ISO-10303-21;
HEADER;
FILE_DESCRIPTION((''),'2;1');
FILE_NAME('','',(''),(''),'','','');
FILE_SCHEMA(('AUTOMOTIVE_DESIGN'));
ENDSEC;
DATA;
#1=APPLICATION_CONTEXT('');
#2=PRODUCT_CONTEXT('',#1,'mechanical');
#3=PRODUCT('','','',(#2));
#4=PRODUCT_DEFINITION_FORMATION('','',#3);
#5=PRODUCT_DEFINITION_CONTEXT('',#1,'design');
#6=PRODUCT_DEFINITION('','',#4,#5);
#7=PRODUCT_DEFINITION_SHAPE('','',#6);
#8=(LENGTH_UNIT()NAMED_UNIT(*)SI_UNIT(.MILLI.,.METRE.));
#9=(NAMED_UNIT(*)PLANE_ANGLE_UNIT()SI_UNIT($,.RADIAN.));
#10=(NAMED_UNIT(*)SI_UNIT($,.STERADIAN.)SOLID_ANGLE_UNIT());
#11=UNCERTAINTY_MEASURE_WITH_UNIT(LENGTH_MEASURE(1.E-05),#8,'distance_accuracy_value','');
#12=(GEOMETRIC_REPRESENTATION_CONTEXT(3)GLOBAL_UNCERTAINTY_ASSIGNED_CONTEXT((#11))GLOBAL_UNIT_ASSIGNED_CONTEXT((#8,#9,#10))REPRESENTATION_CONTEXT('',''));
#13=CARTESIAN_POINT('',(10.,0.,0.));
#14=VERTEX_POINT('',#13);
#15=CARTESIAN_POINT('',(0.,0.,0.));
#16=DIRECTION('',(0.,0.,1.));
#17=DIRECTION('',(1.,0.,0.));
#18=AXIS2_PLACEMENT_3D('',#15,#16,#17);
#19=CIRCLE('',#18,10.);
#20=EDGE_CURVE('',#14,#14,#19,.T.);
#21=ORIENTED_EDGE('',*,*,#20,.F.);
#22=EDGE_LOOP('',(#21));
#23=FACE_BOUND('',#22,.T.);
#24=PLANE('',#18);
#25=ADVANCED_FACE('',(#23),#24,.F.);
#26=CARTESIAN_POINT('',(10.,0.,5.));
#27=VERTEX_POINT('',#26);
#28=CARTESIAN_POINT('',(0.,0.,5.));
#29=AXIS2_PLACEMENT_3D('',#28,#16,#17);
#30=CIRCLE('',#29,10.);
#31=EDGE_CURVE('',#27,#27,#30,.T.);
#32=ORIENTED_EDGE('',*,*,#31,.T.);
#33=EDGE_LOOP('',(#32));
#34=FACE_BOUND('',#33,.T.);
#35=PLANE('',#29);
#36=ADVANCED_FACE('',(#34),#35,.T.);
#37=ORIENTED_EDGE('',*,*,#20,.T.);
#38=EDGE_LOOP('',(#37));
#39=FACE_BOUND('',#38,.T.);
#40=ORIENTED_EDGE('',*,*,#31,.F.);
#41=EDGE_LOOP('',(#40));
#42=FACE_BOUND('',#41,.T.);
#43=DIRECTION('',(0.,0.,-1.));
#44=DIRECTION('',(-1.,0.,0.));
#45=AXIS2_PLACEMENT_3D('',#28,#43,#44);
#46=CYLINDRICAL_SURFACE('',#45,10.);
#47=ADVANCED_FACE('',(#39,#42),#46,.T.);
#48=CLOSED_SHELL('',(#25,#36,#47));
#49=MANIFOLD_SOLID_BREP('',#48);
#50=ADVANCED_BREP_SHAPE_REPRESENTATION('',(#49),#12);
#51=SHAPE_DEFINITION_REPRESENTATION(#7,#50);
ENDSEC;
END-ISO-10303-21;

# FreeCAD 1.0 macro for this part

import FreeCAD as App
import Part
import Sketcher

V = App.Vector

doc = App.newDocument("Part")
body = doc.addObject("PartDesign::Body", "Body")

sketch1 = body.newObject("Sketcher::SketchObject", "Sketch")
sketch1.AttachmentSupport = (doc.getObject("XY_Plane"), [""])
sketch1.MapMode = "FlatFace"
sketch1.addGeometry(Part.Circle(V(0, 0, 0), V(0, 0, 1), 10), False)
sketch1.addConstraint(Sketcher.Constraint("Coincident", 0, 3, -1, 1))
sketch1.addConstraint(Sketcher.Constraint("Diameter", 0, 20.0))
pad1 = body.newObject("PartDesign::Pad", "Pad")
pad1.Profile = sketch1
pad1.Length = 5

doc.recompute()
